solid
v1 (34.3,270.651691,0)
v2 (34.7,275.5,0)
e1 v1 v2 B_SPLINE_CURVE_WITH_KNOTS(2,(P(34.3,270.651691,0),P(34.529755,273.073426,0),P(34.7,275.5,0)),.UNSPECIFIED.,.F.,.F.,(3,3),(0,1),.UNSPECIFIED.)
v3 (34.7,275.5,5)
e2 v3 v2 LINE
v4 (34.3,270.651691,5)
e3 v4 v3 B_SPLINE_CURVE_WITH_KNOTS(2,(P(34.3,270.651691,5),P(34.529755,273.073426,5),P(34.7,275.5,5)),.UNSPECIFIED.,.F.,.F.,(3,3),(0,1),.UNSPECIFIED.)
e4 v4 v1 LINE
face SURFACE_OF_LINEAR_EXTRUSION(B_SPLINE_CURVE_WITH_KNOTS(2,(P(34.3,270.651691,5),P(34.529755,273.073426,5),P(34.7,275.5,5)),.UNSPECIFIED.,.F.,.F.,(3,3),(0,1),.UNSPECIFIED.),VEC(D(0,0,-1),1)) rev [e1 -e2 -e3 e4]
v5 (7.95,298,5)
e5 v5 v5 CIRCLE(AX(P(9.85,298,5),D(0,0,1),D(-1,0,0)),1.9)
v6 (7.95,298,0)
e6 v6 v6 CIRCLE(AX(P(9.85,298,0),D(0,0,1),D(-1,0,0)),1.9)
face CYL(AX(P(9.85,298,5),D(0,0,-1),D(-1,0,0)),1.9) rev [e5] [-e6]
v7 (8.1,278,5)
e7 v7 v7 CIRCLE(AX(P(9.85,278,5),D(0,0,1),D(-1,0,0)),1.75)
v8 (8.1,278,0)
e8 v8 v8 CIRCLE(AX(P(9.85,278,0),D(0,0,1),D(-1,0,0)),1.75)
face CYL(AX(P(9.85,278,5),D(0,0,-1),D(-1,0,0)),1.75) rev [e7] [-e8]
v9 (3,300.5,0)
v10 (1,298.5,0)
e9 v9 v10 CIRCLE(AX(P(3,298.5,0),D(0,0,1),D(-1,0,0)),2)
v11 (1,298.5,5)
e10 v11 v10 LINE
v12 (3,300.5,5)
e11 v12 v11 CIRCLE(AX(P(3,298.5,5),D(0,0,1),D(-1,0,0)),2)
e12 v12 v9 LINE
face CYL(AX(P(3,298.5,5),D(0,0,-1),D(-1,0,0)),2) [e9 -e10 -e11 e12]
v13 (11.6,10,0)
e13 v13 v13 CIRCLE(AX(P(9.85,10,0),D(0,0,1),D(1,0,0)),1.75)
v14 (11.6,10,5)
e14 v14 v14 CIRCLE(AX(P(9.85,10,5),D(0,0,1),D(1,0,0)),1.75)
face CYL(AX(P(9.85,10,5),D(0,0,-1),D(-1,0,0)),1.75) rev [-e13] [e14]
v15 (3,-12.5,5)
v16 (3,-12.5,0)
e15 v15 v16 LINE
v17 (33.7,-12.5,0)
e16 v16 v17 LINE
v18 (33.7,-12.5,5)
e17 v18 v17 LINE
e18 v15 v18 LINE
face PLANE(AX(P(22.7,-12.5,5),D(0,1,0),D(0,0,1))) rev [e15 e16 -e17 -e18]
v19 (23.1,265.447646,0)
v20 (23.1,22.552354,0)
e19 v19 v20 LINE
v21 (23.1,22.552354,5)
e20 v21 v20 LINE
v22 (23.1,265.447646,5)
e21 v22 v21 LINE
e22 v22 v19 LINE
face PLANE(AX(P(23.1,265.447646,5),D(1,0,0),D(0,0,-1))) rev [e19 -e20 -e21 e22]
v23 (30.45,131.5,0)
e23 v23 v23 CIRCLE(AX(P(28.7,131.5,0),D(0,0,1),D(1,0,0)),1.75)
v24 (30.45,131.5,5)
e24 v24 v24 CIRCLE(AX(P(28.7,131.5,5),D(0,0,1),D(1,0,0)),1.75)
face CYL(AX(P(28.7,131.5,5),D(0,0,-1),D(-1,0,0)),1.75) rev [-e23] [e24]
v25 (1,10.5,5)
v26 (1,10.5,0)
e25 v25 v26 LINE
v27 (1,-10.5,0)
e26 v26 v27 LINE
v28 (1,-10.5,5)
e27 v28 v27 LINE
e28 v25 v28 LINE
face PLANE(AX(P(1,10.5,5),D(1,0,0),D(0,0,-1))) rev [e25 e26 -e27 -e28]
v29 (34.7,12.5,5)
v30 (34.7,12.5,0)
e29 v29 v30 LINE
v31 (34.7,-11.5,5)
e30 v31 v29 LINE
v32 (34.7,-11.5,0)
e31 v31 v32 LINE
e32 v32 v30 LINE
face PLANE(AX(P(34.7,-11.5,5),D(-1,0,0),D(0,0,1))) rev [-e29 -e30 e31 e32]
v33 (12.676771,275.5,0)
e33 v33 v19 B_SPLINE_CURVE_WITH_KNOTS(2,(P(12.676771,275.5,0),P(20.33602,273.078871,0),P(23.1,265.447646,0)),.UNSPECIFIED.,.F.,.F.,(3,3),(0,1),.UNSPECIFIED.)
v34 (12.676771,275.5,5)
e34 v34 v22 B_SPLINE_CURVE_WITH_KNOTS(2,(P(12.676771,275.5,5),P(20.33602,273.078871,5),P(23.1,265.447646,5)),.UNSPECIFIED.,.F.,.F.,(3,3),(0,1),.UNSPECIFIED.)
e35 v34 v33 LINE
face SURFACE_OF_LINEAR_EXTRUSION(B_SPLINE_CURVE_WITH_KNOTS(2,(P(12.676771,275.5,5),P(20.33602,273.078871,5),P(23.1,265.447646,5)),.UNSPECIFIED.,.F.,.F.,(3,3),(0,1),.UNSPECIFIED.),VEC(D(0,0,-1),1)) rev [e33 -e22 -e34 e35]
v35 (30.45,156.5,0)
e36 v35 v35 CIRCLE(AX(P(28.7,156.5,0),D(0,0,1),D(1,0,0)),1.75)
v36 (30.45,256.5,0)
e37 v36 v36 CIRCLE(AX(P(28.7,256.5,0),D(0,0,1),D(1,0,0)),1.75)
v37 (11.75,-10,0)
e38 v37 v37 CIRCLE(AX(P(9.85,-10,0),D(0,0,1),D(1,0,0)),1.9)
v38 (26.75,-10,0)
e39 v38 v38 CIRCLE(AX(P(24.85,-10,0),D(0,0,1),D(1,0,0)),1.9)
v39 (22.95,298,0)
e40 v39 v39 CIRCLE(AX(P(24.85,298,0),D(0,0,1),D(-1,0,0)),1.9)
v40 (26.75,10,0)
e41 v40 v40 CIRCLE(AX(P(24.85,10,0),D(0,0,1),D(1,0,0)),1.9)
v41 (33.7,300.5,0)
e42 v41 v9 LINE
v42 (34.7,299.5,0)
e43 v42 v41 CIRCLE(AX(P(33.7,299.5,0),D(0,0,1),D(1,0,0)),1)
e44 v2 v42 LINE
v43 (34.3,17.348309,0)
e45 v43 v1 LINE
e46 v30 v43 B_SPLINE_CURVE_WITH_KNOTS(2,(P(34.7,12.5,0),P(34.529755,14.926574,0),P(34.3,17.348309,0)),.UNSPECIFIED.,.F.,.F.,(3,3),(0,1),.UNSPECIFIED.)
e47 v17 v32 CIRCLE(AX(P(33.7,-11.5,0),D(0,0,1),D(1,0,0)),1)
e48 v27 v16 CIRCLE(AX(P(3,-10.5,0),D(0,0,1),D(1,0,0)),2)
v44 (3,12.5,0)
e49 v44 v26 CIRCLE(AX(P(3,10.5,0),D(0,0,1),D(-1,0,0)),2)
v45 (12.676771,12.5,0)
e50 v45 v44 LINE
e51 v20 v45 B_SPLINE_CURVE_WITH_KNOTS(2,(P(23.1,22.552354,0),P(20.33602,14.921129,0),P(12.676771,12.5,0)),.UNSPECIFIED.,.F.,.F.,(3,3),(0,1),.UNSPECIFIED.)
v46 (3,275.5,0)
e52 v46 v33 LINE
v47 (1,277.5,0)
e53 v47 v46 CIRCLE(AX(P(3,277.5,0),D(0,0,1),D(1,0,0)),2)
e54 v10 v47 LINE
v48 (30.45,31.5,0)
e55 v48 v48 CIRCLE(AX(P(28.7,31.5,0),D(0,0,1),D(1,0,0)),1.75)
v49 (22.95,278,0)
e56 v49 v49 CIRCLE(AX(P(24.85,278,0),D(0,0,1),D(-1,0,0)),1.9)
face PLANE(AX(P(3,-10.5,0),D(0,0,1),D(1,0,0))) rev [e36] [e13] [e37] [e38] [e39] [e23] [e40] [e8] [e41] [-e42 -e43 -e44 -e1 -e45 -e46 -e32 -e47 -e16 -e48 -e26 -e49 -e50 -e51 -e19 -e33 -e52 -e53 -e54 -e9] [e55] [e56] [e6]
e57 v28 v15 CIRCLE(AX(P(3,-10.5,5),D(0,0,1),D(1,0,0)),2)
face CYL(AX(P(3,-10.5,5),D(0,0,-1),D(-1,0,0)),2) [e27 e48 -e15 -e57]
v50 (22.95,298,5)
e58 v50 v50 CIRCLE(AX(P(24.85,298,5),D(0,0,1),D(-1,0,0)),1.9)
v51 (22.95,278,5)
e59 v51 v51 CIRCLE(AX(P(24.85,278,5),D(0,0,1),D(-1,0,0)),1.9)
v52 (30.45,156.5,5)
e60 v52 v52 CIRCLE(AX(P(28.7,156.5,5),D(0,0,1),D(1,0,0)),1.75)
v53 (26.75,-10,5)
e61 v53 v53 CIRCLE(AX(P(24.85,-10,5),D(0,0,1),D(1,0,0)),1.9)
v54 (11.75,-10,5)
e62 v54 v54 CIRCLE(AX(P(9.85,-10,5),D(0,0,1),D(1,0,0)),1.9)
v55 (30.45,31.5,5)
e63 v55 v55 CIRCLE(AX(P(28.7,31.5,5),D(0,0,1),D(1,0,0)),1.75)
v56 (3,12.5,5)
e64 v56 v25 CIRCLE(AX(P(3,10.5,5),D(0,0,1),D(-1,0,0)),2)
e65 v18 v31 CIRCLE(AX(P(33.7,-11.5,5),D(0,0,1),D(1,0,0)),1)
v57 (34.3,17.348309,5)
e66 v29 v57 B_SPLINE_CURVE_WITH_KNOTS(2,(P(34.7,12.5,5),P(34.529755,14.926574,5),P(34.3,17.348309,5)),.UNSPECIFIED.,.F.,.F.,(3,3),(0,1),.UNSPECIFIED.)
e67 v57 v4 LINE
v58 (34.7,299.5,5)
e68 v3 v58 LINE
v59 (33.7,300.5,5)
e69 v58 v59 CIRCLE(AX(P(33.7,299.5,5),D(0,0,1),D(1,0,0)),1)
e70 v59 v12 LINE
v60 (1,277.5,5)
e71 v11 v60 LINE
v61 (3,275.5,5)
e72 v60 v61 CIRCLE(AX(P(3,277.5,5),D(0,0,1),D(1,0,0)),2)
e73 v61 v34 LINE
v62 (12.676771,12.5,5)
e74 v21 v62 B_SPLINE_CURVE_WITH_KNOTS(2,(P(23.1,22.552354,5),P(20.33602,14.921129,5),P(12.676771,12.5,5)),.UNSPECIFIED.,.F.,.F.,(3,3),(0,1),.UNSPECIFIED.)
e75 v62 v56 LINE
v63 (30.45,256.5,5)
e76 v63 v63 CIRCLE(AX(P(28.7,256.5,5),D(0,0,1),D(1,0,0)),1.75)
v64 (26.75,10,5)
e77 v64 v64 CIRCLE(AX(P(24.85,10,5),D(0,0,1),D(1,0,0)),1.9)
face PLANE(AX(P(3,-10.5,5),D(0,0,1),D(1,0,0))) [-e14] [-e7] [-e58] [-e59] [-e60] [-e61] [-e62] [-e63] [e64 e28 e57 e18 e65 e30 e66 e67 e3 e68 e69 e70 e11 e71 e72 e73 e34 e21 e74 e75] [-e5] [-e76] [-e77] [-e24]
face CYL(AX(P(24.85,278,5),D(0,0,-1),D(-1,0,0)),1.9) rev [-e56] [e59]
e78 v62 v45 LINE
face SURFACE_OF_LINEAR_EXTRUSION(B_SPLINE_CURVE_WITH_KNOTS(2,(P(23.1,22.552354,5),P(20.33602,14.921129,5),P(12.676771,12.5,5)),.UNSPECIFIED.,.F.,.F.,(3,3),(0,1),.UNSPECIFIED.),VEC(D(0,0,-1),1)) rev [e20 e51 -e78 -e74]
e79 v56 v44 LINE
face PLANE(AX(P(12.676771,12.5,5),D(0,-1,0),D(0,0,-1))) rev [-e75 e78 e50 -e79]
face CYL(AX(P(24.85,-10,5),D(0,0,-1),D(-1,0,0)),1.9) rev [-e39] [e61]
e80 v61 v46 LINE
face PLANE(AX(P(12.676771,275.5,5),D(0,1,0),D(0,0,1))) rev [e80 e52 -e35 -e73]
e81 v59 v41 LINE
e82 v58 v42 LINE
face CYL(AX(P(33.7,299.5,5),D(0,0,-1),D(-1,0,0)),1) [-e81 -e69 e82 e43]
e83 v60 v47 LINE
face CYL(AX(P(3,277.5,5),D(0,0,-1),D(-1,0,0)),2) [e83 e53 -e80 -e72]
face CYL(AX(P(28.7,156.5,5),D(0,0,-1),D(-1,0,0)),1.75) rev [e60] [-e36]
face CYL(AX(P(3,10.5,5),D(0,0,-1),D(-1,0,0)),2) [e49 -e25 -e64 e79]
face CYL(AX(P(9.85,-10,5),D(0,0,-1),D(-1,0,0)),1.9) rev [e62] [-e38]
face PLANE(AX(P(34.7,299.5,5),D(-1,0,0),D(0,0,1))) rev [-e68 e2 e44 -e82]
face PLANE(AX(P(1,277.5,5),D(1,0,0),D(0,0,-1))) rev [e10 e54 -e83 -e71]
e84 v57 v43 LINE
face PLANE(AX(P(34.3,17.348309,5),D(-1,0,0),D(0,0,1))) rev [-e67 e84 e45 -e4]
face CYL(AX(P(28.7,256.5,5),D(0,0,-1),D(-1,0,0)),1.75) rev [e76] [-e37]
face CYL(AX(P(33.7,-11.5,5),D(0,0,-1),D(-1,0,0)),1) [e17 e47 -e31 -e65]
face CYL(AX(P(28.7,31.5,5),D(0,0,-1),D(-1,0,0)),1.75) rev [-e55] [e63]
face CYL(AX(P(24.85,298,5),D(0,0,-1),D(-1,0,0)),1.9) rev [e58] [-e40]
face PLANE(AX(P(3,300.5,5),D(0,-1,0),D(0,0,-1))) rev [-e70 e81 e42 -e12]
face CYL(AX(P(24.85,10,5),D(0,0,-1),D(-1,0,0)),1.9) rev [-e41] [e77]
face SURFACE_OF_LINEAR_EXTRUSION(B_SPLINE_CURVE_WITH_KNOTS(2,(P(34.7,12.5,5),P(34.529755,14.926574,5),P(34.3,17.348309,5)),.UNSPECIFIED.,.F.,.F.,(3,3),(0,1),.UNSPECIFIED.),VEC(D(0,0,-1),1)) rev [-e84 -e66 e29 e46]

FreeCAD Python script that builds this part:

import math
import FreeCAD as App
import Part
import Sketcher

V = App.Vector

doc = App.newDocument("Part")
body = doc.addObject("PartDesign::Body", "Body")

sketch1 = body.newObject("Sketcher::SketchObject", "Sketch")
sketch1.AttachmentSupport = (doc.getObject("XY_Plane"), [""])
sketch1.MapMode = "FlatFace"
sketch1.addGeometry([
    Part.ArcOfCircle(Part.Circle(V(33.7, -11.5, 0), V(0, 0, 1), 1), math.radians(-90), math.radians(0)),
    Part.LineSegment(V(34.7, -11.5, 0), V(34.7, 12.5, 0)),
    Part.BSplineCurve([V(34.3, 17.348309, 0), V(34.529755, 14.926574, 0), V(34.7, 12.5, 0)], [3, 3], [0, 1], False, 2, [1, 1, 1], False),
    Part.LineSegment(V(34.3, 17.348309, 0), V(34.3, 270.651691, 0)),
    Part.BSplineCurve([V(34.3, 270.651691, 0), V(34.529755, 273.073426, 0), V(34.7, 275.5, 0)], [3, 3], [0, 1], False, 2, [1, 1, 1], False),
    Part.LineSegment(V(34.7, 275.5, 0), V(34.7, 299.5, 0)),
    Part.ArcOfCircle(Part.Circle(V(33.7, 299.5, 0), V(0, 0, 1), 1), math.radians(0), math.radians(90)),
    Part.LineSegment(V(33.7, 300.5, 0), V(3, 300.5, 0)),
    Part.ArcOfCircle(Part.Circle(V(3, 298.5, 0), V(0, 0, 1), 2), math.radians(90), math.radians(180)),
    Part.LineSegment(V(1, 298.5, 0), V(1, 277.5, 0)),
    Part.ArcOfCircle(Part.Circle(V(3, 277.5, 0), V(0, 0, 1), 2), math.radians(-180), math.radians(-90)),
    Part.LineSegment(V(3, 275.5, 0), V(12.676771, 275.5, 0)),
    Part.BSplineCurve([V(23.1, 265.447646, 0), V(20.33602, 273.078871, 0), V(12.676771, 275.5, 0)], [3, 3], [0, 1], False, 2, [1, 1, 1], False),
    Part.LineSegment(V(23.1, 265.447646, 0), V(23.1, 22.552354, 0)),
    Part.BSplineCurve([V(23.1, 22.552354, 0), V(20.33602, 14.921129, 0), V(12.676771, 12.5, 0)], [3, 3], [0, 1], False, 2, [1, 1, 1], False),
    Part.LineSegment(V(12.676771, 12.5, 0), V(3, 12.5, 0)),
    Part.ArcOfCircle(Part.Circle(V(3, 10.5, 0), V(0, 0, 1), 2), math.radians(90), math.radians(180)),
    Part.LineSegment(V(1, 10.5, 0), V(1, -10.5, 0)),
    Part.ArcOfCircle(Part.Circle(V(3, -10.5, 0), V(0, 0, 1), 2), math.radians(-180), math.radians(-90)),
    Part.LineSegment(V(3, -12.5, 0), V(33.7, -12.5, 0)),
    Part.Circle(V(9.85, -10, 0), V(0, 0, 1), 1.9),
    Part.Circle(V(9.85, 10, 0), V(0, 0, 1), 1.75),
    Part.Circle(V(24.85, -10, 0), V(0, 0, 1), 1.9),
    Part.Circle(V(24.85, 10, 0), V(0, 0, 1), 1.9),
    Part.Circle(V(28.7, 31.5, 0), V(0, 0, 1), 1.75),
    Part.Circle(V(28.7, 131.5, 0), V(0, 0, 1), 1.75),
    Part.Circle(V(9.85, 278, 0), V(0, 0, 1), 1.75),
    Part.Circle(V(9.85, 298, 0), V(0, 0, 1), 1.9),
    Part.Circle(V(28.7, 156.5, 0), V(0, 0, 1), 1.75),
    Part.Circle(V(28.7, 256.5, 0), V(0, 0, 1), 1.75),
    Part.Circle(V(24.85, 278, 0), V(0, 0, 1), 1.9),
    Part.Circle(V(24.85, 298, 0), V(0, 0, 1), 1.9),
], False)
sketch1.addConstraint([
    Sketcher.Constraint("Block", 2),
    Sketcher.Constraint("Block", 4),
    Sketcher.Constraint("Block", 12),
    Sketcher.Constraint("Block", 14),
    Sketcher.Constraint("Tangent", 0, 2, 1, 1),
    Sketcher.Constraint("Coincident", 1, 2, 2, 2),
    Sketcher.Constraint("Coincident", 2, 1, 3, 1),
    Sketcher.Constraint("Coincident", 3, 2, 4, 1),
    Sketcher.Constraint("Coincident", 4, 2, 5, 1),
    Sketcher.Constraint("Tangent", 5, 2, 6, 1),
    Sketcher.Constraint("Tangent", 6, 2, 7, 1),
    Sketcher.Constraint("Tangent", 7, 2, 8, 1),
    Sketcher.Constraint("Tangent", 8, 2, 9, 1),
    Sketcher.Constraint("Tangent", 9, 2, 10, 1),
    Sketcher.Constraint("Tangent", 10, 2, 11, 1),
    Sketcher.Constraint("Coincident", 11, 2, 12, 2),
    Sketcher.Constraint("Coincident", 12, 1, 13, 1),
    Sketcher.Constraint("Coincident", 13, 2, 14, 1),
    Sketcher.Constraint("Coincident", 14, 2, 15, 1),
    Sketcher.Constraint("Tangent", 15, 2, 16, 1),
    Sketcher.Constraint("Tangent", 16, 2, 17, 1),
    Sketcher.Constraint("Tangent", 17, 2, 18, 1),
    Sketcher.Constraint("Tangent", 18, 2, 19, 1),
    Sketcher.Constraint("Tangent", 19, 2, 0, 1),
    Sketcher.Constraint("Vertical", 1),
    Sketcher.Constraint("Vertical", 5),
    Sketcher.Constraint("Horizontal", 7),
    Sketcher.Constraint("Vertical", 9),
    Sketcher.Constraint("Horizontal", 11),
    Sketcher.Constraint("Horizontal", 15),
    Sketcher.Constraint("Vertical", 17),
    Sketcher.Constraint("Horizontal", 19),
    Sketcher.Constraint("Equal", 0, 6),
    Sketcher.Constraint("Equal", 8, 10),
    Sketcher.Constraint("Equal", 10, 16),
    Sketcher.Constraint("Equal", 16, 18),
    Sketcher.Constraint("Equal", 20, 22),
    Sketcher.Constraint("Equal", 22, 23),
    Sketcher.Constraint("Equal", 21, 24),
    Sketcher.Constraint("Equal", 24, 25),
    Sketcher.Constraint("Equal", 25, 26),
    Sketcher.Constraint("Equal", 23, 27),
    Sketcher.Constraint("Equal", 26, 28),
    Sketcher.Constraint("Equal", 28, 29),
    Sketcher.Constraint("Equal", 27, 30),
    Sketcher.Constraint("Equal", 30, 31),
    Sketcher.Constraint("Symmetric", 20, 3, 21, 3, -1),
    Sketcher.Constraint("Symmetric", 22, 3, 23, 3, -1),
    Sketcher.Constraint("Horizontal", 20, 3, 22, 3),
    Sketcher.Constraint("Horizontal", 26, 3, 30, 3),
    Sketcher.Constraint("Horizontal", 27, 3, 31, 3),
    Sketcher.Constraint("Vertical", 10, 3, 16, 3),
    Sketcher.Constraint("Vertical", 24, 3, 25, 3),
    Sketcher.Constraint("Vertical", 21, 3, 26, 3),
    Sketcher.Constraint("Vertical", 26, 3, 27, 3),
    Sketcher.Constraint("Vertical", 25, 3, 28, 3),
    Sketcher.Constraint("Vertical", 28, 3, 29, 3),
    Sketcher.Constraint("Vertical", 23, 3, 30, 3),
    Sketcher.Constraint("Vertical", 30, 3, 31, 3),
    Sketcher.Constraint("Equal", 1, 5),
    Sketcher.Constraint("Radius", 0, 1.0),
    Sketcher.Constraint("Radius", 8, 2.0),
    Sketcher.Constraint("Diameter", 20, 3.8),
    Sketcher.Constraint("Diameter", 21, 3.5),
    Sketcher.Constraint("DistanceY", 1, 1, 1, 2, 24.0),
    Sketcher.Constraint("DistanceX", 7, 2, 7, 1, 30.7),
    Sketcher.Constraint("DistanceY", 20, 3, -1, 1, 10.0),
    Sketcher.Constraint("DistanceY", -1, 1, 26, 3, 278.0),
    Sketcher.Constraint("DistanceY", -1, 1, 27, 3, 298.0),
    Sketcher.Constraint("DistanceX", 20, 3, 22, 3, 15.0),
    Sketcher.Constraint("DistanceY", 16, 3, 24, 3, 21.0),
    Sketcher.Constraint("DistanceX", 24, 3, 0, 3, 5.0),
    Sketcher.Constraint("DistanceY", 24, 3, 25, 3, 100.0),
    Sketcher.Constraint("DistanceY", 25, 3, 28, 3, 25.0),
    Sketcher.Constraint("DistanceY", 29, 3, 10, 3, 21.0),
    Sketcher.Constraint("DistanceX", -1, 1, 20, 3, 9.85),
])
pad1 = body.newObject("PartDesign::Pad", "Pad")
pad1.Profile = sketch1
pad1.Length = 5

doc.recompute()
